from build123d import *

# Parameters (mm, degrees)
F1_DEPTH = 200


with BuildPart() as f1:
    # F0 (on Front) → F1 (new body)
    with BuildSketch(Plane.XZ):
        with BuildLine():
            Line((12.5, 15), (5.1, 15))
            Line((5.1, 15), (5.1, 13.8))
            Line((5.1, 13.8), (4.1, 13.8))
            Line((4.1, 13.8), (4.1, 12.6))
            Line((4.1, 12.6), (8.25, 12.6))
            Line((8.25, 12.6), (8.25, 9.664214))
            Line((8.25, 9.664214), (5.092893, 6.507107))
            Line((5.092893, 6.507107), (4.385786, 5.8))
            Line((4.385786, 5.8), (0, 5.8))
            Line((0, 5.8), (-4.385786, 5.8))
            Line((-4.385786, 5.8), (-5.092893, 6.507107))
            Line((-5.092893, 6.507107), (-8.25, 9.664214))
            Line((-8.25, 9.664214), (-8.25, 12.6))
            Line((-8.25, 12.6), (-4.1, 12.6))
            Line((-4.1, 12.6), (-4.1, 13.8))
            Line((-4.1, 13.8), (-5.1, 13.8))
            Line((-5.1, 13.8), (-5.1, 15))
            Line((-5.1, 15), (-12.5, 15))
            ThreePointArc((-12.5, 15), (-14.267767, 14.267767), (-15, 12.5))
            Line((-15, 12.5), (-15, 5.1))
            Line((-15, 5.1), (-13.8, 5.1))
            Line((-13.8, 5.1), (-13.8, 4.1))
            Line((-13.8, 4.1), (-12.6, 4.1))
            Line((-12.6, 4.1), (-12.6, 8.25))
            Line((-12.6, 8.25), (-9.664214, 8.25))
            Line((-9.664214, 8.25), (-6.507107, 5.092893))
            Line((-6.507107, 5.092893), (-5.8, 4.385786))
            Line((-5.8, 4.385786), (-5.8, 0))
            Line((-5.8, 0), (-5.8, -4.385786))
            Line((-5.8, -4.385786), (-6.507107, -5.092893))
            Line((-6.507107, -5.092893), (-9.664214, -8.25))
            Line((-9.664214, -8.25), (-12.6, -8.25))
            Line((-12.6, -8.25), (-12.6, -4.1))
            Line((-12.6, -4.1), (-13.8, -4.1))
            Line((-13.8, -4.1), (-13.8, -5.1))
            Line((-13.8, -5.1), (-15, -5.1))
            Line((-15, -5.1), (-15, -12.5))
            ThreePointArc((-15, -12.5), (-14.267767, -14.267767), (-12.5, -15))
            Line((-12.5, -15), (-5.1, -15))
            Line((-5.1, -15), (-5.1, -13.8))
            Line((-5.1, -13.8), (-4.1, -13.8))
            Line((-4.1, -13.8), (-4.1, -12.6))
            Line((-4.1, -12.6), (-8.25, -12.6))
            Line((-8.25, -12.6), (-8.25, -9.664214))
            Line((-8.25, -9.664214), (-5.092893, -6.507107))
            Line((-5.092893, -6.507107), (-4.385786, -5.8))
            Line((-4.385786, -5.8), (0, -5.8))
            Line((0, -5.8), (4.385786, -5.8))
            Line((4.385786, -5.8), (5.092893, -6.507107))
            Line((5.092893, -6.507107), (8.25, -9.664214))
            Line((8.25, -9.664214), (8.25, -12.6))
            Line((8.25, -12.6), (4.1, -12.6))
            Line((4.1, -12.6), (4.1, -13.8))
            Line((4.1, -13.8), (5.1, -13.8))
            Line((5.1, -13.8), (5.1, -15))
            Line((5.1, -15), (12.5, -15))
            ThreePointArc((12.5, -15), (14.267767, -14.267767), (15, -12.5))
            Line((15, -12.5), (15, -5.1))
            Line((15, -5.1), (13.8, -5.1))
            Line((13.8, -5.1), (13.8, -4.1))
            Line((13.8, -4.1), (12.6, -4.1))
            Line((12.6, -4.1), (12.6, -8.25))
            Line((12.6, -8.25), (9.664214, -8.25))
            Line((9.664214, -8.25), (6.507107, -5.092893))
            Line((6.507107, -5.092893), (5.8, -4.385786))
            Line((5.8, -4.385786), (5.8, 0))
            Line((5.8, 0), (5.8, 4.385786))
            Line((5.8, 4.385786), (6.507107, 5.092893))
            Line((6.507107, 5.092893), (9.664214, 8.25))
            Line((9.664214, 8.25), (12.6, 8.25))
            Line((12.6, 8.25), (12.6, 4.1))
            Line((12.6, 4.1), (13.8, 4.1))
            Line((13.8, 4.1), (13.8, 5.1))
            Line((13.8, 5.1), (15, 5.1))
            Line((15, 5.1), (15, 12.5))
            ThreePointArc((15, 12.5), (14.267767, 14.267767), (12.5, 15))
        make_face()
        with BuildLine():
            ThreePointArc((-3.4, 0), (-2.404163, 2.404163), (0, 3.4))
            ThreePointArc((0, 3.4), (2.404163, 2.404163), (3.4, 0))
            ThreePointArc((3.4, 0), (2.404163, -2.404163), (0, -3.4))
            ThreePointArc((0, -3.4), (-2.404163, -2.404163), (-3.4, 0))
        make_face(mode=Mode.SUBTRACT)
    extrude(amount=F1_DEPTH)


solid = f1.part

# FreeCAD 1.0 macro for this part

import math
import FreeCAD as App
import Part
import Sketcher
from FreeCAD import Vector
Q = App.Units.Quantity

doc = App.newDocument("Part")
params = doc.addObject("Spreadsheet::Sheet", "Params")
for row, (alias, value) in enumerate([
    ("sketch1_radius", "2.5 mm"),
    ("sketch1_radius2", "3.4 mm"),
    ("sketch1_width", "1 mm"),
    ("sketch1_width2", "7.4 mm"),
    ("sketch1_width3", "1.2 mm"),
    ("pad1_length", "200 mm"),
], start=1):
    params.set(f"A{row}", alias)
    params.set(f"B{row}", "=" + value)
    params.setAlias(f"B{row}", alias)

body = doc.addObject("PartDesign::Body", "Body")

# Sketch on XZ plane
sketch1 = body.newObject("Sketcher::SketchObject", "Sketch")
sketch1.AttachmentSupport = (doc.getObject("XZ_Plane"), [""])
sketch1.MapMode = "FlatFace"
sketch1.addGeometry(Part.LineSegment(Vector(12.5, 15, 0), Vector(5.1, 15, 0)), False)
sketch1.addGeometry(Part.LineSegment(Vector(5.1, 15, 0), Vector(5.1, 13.8, 0)), False)
sketch1.addGeometry(Part.LineSegment(Vector(5.1, 13.8, 0), Vector(4.1, 13.8, 0)), False)
sketch1.addGeometry(Part.LineSegment(Vector(4.1, 13.8, 0), Vector(4.1, 12.6, 0)), False)
sketch1.addGeometry(Part.LineSegment(Vector(4.1, 12.6, 0), Vector(8.25, 12.6, 0)), False)
sketch1.addGeometry(Part.LineSegment(Vector(8.25, 12.6, 0), Vector(8.25, 9.664214, 0)), False)
sketch1.addGeometry(Part.LineSegment(Vector(8.25, 9.664214, 0), Vector(4.385786, 5.8, 0)), False)
sketch1.addGeometry(Part.LineSegment(Vector(4.385786, 5.8, 0), Vector(-4.385786, 5.8, 0)), False)
sketch1.addGeometry(Part.LineSegment(Vector(-4.385786, 5.8, 0), Vector(-8.25, 9.664214, 0)), False)
sketch1.addGeometry(Part.LineSegment(Vector(-8.25, 9.664214, 0), Vector(-8.25, 12.6, 0)), False)
sketch1.addGeometry(Part.LineSegment(Vector(-8.25, 12.6, 0), Vector(-4.1, 12.6, 0)), False)
sketch1.addGeometry(Part.LineSegment(Vector(-4.1, 12.6, 0), Vector(-4.1, 13.8, 0)), False)
sketch1.addGeometry(Part.LineSegment(Vector(-4.1, 13.8, 0), Vector(-5.1, 13.8, 0)), False)
sketch1.addGeometry(Part.LineSegment(Vector(-5.1, 13.8, 0), Vector(-5.1, 15, 0)), False)
sketch1.addGeometry(Part.LineSegment(Vector(-5.1, 15, 0), Vector(-12.5, 15, 0)), False)
sketch1.addGeometry(Part.ArcOfCircle(Part.Circle(Vector(-12.5, 12.5, 0), Vector(0, 0, 1), 2.5), math.radians(89.999996), math.radians(180.000004)), False)
sketch1.addGeometry(Part.LineSegment(Vector(-15, 12.5, 0), Vector(-15, 5.1, 0)), False)
sketch1.addGeometry(Part.LineSegment(Vector(-15, 5.1, 0), Vector(-13.8, 5.1, 0)), False)
sketch1.addGeometry(Part.LineSegment(Vector(-13.8, 5.1, 0), Vector(-13.8, 4.1, 0)), False)
sketch1.addGeometry(Part.LineSegment(Vector(-13.8, 4.1, 0), Vector(-12.6, 4.1, 0)), False)
sketch1.addGeometry(Part.LineSegment(Vector(-12.6, 4.1, 0), Vector(-12.6, 8.25, 0)), False)
sketch1.addGeometry(Part.LineSegment(Vector(-12.6, 8.25, 0), Vector(-9.664214, 8.25, 0)), False)
sketch1.addGeometry(Part.LineSegment(Vector(-9.664214, 8.25, 0), Vector(-5.8, 4.385786, 0)), False)
sketch1.addGeometry(Part.LineSegment(Vector(-5.8, 4.385786, 0), Vector(-5.8, -4.385786, 0)), False)
sketch1.addGeometry(Part.LineSegment(Vector(-5.8, -4.385786, 0), Vector(-9.664214, -8.25, 0)), False)
sketch1.addGeometry(Part.LineSegment(Vector(-9.664214, -8.25, 0), Vector(-12.6, -8.25, 0)), False)
sketch1.addGeometry(Part.LineSegment(Vector(-12.6, -8.25, 0), Vector(-12.6, -4.1, 0)), False)
sketch1.addGeometry(Part.LineSegment(Vector(-12.6, -4.1, 0), Vector(-13.8, -4.1, 0)), False)
sketch1.addGeometry(Part.LineSegment(Vector(-13.8, -4.1, 0), Vector(-13.8, -5.1, 0)), False)
sketch1.addGeometry(Part.LineSegment(Vector(-13.8, -5.1, 0), Vector(-15, -5.1, 0)), False)
sketch1.addGeometry(Part.LineSegment(Vector(-15, -5.1, 0), Vector(-15, -12.5, 0)), False)
sketch1.addGeometry(Part.ArcOfCircle(Part.Circle(Vector(-12.5, -12.5, 0), Vector(0, 0, 1), 2.5), math.radians(179.999996), math.radians(270.000004)), False)
sketch1.addGeometry(Part.LineSegment(Vector(-12.5, -15, 0), Vector(-5.1, -15, 0)), False)
sketch1.addGeometry(Part.LineSegment(Vector(-5.1, -15, 0), Vector(-5.1, -13.8, 0)), False)
sketch1.addGeometry(Part.LineSegment(Vector(-5.1, -13.8, 0), Vector(-4.1, -13.8, 0)), False)
sketch1.addGeometry(Part.LineSegment(Vector(-4.1, -13.8, 0), Vector(-4.1, -12.6, 0)), False)
sketch1.addGeometry(Part.LineSegment(Vector(-4.1, -12.6, 0), Vector(-8.25, -12.6, 0)), False)
sketch1.addGeometry(Part.LineSegment(Vector(-8.25, -12.6, 0), Vector(-8.25, -9.664214, 0)), False)
sketch1.addGeometry(Part.LineSegment(Vector(-8.25, -9.664214, 0), Vector(-4.385786, -5.8, 0)), False)
sketch1.addGeometry(Part.LineSegment(Vector(-4.385786, -5.8, 0), Vector(4.385786, -5.8, 0)), False)
sketch1.addGeometry(Part.LineSegment(Vector(4.385786, -5.8, 0), Vector(8.25, -9.664214, 0)), False)
sketch1.addGeometry(Part.LineSegment(Vector(8.25, -9.664214, 0), Vector(8.25, -12.6, 0)), False)
sketch1.addGeometry(Part.LineSegment(Vector(8.25, -12.6, 0), Vector(4.1, -12.6, 0)), False)
sketch1.addGeometry(Part.LineSegment(Vector(4.1, -12.6, 0), Vector(4.1, -13.8, 0)), False)
sketch1.addGeometry(Part.LineSegment(Vector(4.1, -13.8, 0), Vector(5.1, -13.8, 0)), False)
sketch1.addGeometry(Part.LineSegment(Vector(5.1, -13.8, 0), Vector(5.1, -15, 0)), False)
sketch1.addGeometry(Part.LineSegment(Vector(5.1, -15, 0), Vector(12.5, -15, 0)), False)
sketch1.addGeometry(Part.ArcOfCircle(Part.Circle(Vector(12.5, -12.5, 0), Vector(0, 0, 1), 2.5), math.radians(-90.000004), math.radians(0.000004)), False)
sketch1.addGeometry(Part.LineSegment(Vector(15, -12.5, 0), Vector(15, -5.1, 0)), False)
sketch1.addGeometry(Part.LineSegment(Vector(15, -5.1, 0), Vector(13.8, -5.1, 0)), False)
sketch1.addGeometry(Part.LineSegment(Vector(13.8, -5.1, 0), Vector(13.8, -4.1, 0)), False)
sketch1.addGeometry(Part.LineSegment(Vector(13.8, -4.1, 0), Vector(12.6, -4.1, 0)), False)
sketch1.addGeometry(Part.LineSegment(Vector(12.6, -4.1, 0), Vector(12.6, -8.25, 0)), False)
sketch1.addGeometry(Part.LineSegment(Vector(12.6, -8.25, 0), Vector(9.664214, -8.25, 0)), False)
sketch1.addGeometry(Part.LineSegment(Vector(9.664214, -8.25, 0), Vector(5.8, -4.385786, 0)), False)
sketch1.addGeometry(Part.LineSegment(Vector(5.8, -4.385786, 0), Vector(5.8, 4.385786, 0)), False)
sketch1.addGeometry(Part.LineSegment(Vector(5.8, 4.385786, 0), Vector(9.664214, 8.25, 0)), False)
sketch1.addGeometry(Part.LineSegment(Vector(9.664214, 8.25, 0), Vector(12.6, 8.25, 0)), False)
sketch1.addGeometry(Part.LineSegment(Vector(12.6, 8.25, 0), Vector(12.6, 4.1, 0)), False)
sketch1.addGeometry(Part.LineSegment(Vector(12.6, 4.1, 0), Vector(13.8, 4.1, 0)), False)
sketch1.addGeometry(Part.LineSegment(Vector(13.8, 4.1, 0), Vector(13.8, 5.1, 0)), False)
sketch1.addGeometry(Part.LineSegment(Vector(13.8, 5.1, 0), Vector(15, 5.1, 0)), False)
sketch1.addGeometry(Part.LineSegment(Vector(15, 5.1, 0), Vector(15, 12.5, 0)), False)
sketch1.addGeometry(Part.ArcOfCircle(Part.Circle(Vector(12.5, 12.5, 0), Vector(0, 0, 1), 2.5), math.radians(-0.000004), math.radians(90.000004)), False)
sketch1.addGeometry(Part.ArcOfCircle(Part.Circle(Vector(0, 0, 0), Vector(0, 0, 1), 3.4), math.radians(-179.999997), math.radians(-90.000003)), False)
sketch1.addGeometry(Part.ArcOfCircle(Part.Circle(Vector(0, 0, 0), Vector(0, 0, 1), 3.4), math.radians(90.000003), math.radians(179.999997)), False)
sketch1.addGeometry(Part.ArcOfCircle(Part.Circle(Vector(0, 0, 0), Vector(0, 0, 1), 3.4), math.radians(0.000003), math.radians(89.999997)), False)
sketch1.addGeometry(Part.ArcOfCircle(Part.Circle(Vector(0, 0, 0), Vector(0, 0, 1), 3.4), math.radians(-89.999997), math.radians(-0.000003)), False)
sketch1.addConstraint(Sketcher.Constraint("Coincident", 0, 2, 1, 1))
sketch1.addConstraint(Sketcher.Constraint("Coincident", 1, 2, 2, 1))
sketch1.addConstraint(Sketcher.Constraint("Coincident", 2, 2, 3, 1))
sketch1.addConstraint(Sketcher.Constraint("Coincident", 3, 2, 4, 1))
sketch1.addConstraint(Sketcher.Constraint("Coincident", 4, 2, 5, 1))
sketch1.addConstraint(Sketcher.Constraint("Coincident", 5, 2, 6, 1))
sketch1.addConstraint(Sketcher.Constraint("Coincident", 6, 2, 7, 1))
sketch1.addConstraint(Sketcher.Constraint("Coincident", 7, 2, 8, 1))
sketch1.addConstraint(Sketcher.Constraint("Coincident", 8, 2, 9, 1))
sketch1.addConstraint(Sketcher.Constraint("Coincident", 9, 2, 10, 1))
sketch1.addConstraint(Sketcher.Constraint("Coincident", 10, 2, 11, 1))
sketch1.addConstraint(Sketcher.Constraint("Coincident", 11, 2, 12, 1))
sketch1.addConstraint(Sketcher.Constraint("Coincident", 12, 2, 13, 1))
sketch1.addConstraint(Sketcher.Constraint("Coincident", 13, 2, 14, 1))
sketch1.addConstraint(Sketcher.Constraint("Tangent", 14, 2, 15, 1))
sketch1.addConstraint(Sketcher.Constraint("Tangent", 15, 2, 16, 1))
sketch1.addConstraint(Sketcher.Constraint("Coincident", 16, 2, 17, 1))
sketch1.addConstraint(Sketcher.Constraint("Coincident", 17, 2, 18, 1))
sketch1.addConstraint(Sketcher.Constraint("Coincident", 18, 2, 19, 1))
sketch1.addConstraint(Sketcher.Constraint("Coincident", 19, 2, 20, 1))
sketch1.addConstraint(Sketcher.Constraint("Coincident", 20, 2, 21, 1))
sketch1.addConstraint(Sketcher.Constraint("Coincident", 21, 2, 22, 1))
sketch1.addConstraint(Sketcher.Constraint("Coincident", 22, 2, 23, 1))
sketch1.addConstraint(Sketcher.Constraint("Coincident", 23, 2, 24, 1))
sketch1.addConstraint(Sketcher.Constraint("Coincident", 24, 2, 25, 1))
sketch1.addConstraint(Sketcher.Constraint("Coincident", 25, 2, 26, 1))
sketch1.addConstraint(Sketcher.Constraint("Coincident", 26, 2, 27, 1))
sketch1.addConstraint(Sketcher.Constraint("Coincident", 27, 2, 28, 1))
sketch1.addConstraint(Sketcher.Constraint("Coincident", 28, 2, 29, 1))
sketch1.addConstraint(Sketcher.Constraint("Coincident", 29, 2, 30, 1))
sketch1.addConstraint(Sketcher.Constraint("Tangent", 30, 2, 31, 1))
sketch1.addConstraint(Sketcher.Constraint("Tangent", 31, 2, 32, 1))
sketch1.addConstraint(Sketcher.Constraint("Coincident", 32, 2, 33, 1))
sketch1.addConstraint(Sketcher.Constraint("Coincident", 33, 2, 34, 1))
sketch1.addConstraint(Sketcher.Constraint("Coincident", 34, 2, 35, 1))
sketch1.addConstraint(Sketcher.Constraint("Coincident", 35, 2, 36, 1))
sketch1.addConstraint(Sketcher.Constraint("Coincident", 36, 2, 37, 1))
sketch1.addConstraint(Sketcher.Constraint("Coincident", 37, 2, 38, 1))
sketch1.addConstraint(Sketcher.Constraint("Coincident", 38, 2, 39, 1))
sketch1.addConstraint(Sketcher.Constraint("Coincident", 39, 2, 40, 1))
sketch1.addConstraint(Sketcher.Constraint("Coincident", 40, 2, 41, 1))
sketch1.addConstraint(Sketcher.Constraint("Coincident", 41, 2, 42, 1))
sketch1.addConstraint(Sketcher.Constraint("Coincident", 42, 2, 43, 1))
sketch1.addConstraint(Sketcher.Constraint("Coincident", 43, 2, 44, 1))
sketch1.addConstraint(Sketcher.Constraint("Coincident", 44, 2, 45, 1))
sketch1.addConstraint(Sketcher.Constraint("Coincident", 45, 2, 46, 1))
sketch1.addConstraint(Sketcher.Constraint("Tangent", 46, 2, 47, 1))
sketch1.addConstraint(Sketcher.Constraint("Tangent", 47, 2, 48, 1))
sketch1.addConstraint(Sketcher.Constraint("Coincident", 48, 2, 49, 1))
sketch1.addConstraint(Sketcher.Constraint("Coincident", 49, 2, 50, 1))
sketch1.addConstraint(Sketcher.Constraint("Coincident", 50, 2, 51, 1))
sketch1.addConstraint(Sketcher.Constraint("Coincident", 51, 2, 52, 1))
sketch1.addConstraint(Sketcher.Constraint("Coincident", 52, 2, 53, 1))
sketch1.addConstraint(Sketcher.Constraint("Coincident", 53, 2, 54, 1))
sketch1.addConstraint(Sketcher.Constraint("Coincident", 54, 2, 55, 1))
sketch1.addConstraint(Sketcher.Constraint("Coincident", 55, 2, 56, 1))
sketch1.addConstraint(Sketcher.Constraint("Coincident", 56, 2, 57, 1))
sketch1.addConstraint(Sketcher.Constraint("Coincident", 57, 2, 58, 1))
sketch1.addConstraint(Sketcher.Constraint("Coincident", 58, 2, 59, 1))
sketch1.addConstraint(Sketcher.Constraint("Coincident", 59, 2, 60, 1))
sketch1.addConstraint(Sketcher.Constraint("Coincident", 60, 2, 61, 1))
sketch1.addConstraint(Sketcher.Constraint("Coincident", 61, 2, 62, 1))
sketch1.addConstraint(Sketcher.Constraint("Tangent", 62, 2, 63, 1))
sketch1.addConstraint(Sketcher.Constraint("Tangent", 63, 2, 0, 1))
sketch1.addConstraint(Sketcher.Constraint("Tangent", 64, 1, 65, 2))
sketch1.addConstraint(Sketcher.Constraint("Tangent", 65, 1, 66, 2))
sketch1.addConstraint(Sketcher.Constraint("Tangent", 66, 1, 67, 2))
sketch1.addConstraint(Sketcher.Constraint("Tangent", 67, 1, 64, 2))
sketch1.addConstraint(Sketcher.Constraint("Horizontal", 0))
sketch1.addConstraint(Sketcher.Constraint("Vertical", 1))
sketch1.addConstraint(Sketcher.Constraint("Horizontal", 2))
sketch1.addConstraint(Sketcher.Constraint("Vertical", 3))
sketch1.addConstraint(Sketcher.Constraint("Horizontal", 4))
sketch1.addConstraint(Sketcher.Constraint("Vertical", 5))
sketch1.addConstraint(Sketcher.Constraint("Horizontal", 7))
sketch1.addConstraint(Sketcher.Constraint("Vertical", 9))
sketch1.addConstraint(Sketcher.Constraint("Horizontal", 10))
sketch1.addConstraint(Sketcher.Constraint("Vertical", 11))
sketch1.addConstraint(Sketcher.Constraint("Horizontal", 12))
sketch1.addConstraint(Sketcher.Constraint("Vertical", 13))
sketch1.addConstraint(Sketcher.Constraint("Horizontal", 14))
sketch1.addConstraint(Sketcher.Constraint("Vertical", 16))
sketch1.addConstraint(Sketcher.Constraint("Horizontal", 17))
sketch1.addConstraint(Sketcher.Constraint("Vertical", 18))
sketch1.addConstraint(Sketcher.Constraint("Horizontal", 19))
sketch1.addConstraint(Sketcher.Constraint("Vertical", 20))
sketch1.addConstraint(Sketcher.Constraint("Horizontal", 21))
sketch1.addConstraint(Sketcher.Constraint("Vertical", 23))
sketch1.addConstraint(Sketcher.Constraint("Horizontal", 25))
sketch1.addConstraint(Sketcher.Constraint("Vertical", 26))
sketch1.addConstraint(Sketcher.Constraint("Horizontal", 27))
sketch1.addConstraint(Sketcher.Constraint("Vertical", 28))
sketch1.addConstraint(Sketcher.Constraint("Horizontal", 29))
sketch1.addConstraint(Sketcher.Constraint("Vertical", 30))
sketch1.addConstraint(Sketcher.Constraint("Horizontal", 32))
sketch1.addConstraint(Sketcher.Constraint("Vertical", 33))
sketch1.addConstraint(Sketcher.Constraint("Horizontal", 34))
sketch1.addConstraint(Sketcher.Constraint("Vertical", 35))
sketch1.addConstraint(Sketcher.Constraint("Horizontal", 36))
sketch1.addConstraint(Sketcher.Constraint("Vertical", 37))
sketch1.addConstraint(Sketcher.Constraint("Horizontal", 39))
sketch1.addConstraint(Sketcher.Constraint("Vertical", 41))
sketch1.addConstraint(Sketcher.Constraint("Horizontal", 42))
sketch1.addConstraint(Sketcher.Constraint("Vertical", 43))
sketch1.addConstraint(Sketcher.Constraint("Horizontal", 44))
sketch1.addConstraint(Sketcher.Constraint("Vertical", 45))
sketch1.addConstraint(Sketcher.Constraint("Horizontal", 46))
sketch1.addConstraint(Sketcher.Constraint("Vertical", 48))
sketch1.addConstraint(Sketcher.Constraint("Horizontal", 49))
sketch1.addConstraint(Sketcher.Constraint("Vertical", 50))
sketch1.addConstraint(Sketcher.Constraint("Horizontal", 51))
sketch1.addConstraint(Sketcher.Constraint("Vertical", 52))
sketch1.addConstraint(Sketcher.Constraint("Horizontal", 53))
sketch1.addConstraint(Sketcher.Constraint("Vertical", 55))
sketch1.addConstraint(Sketcher.Constraint("Horizontal", 57))
sketch1.addConstraint(Sketcher.Constraint("Vertical", 58))
sketch1.addConstraint(Sketcher.Constraint("Horizontal", 59))
sketch1.addConstraint(Sketcher.Constraint("Vertical", 60))
sketch1.addConstraint(Sketcher.Constraint("Horizontal", 61))
sketch1.addConstraint(Sketcher.Constraint("Vertical", 62))
sketch1.addConstraint(Sketcher.Constraint("Coincident", 64, 3, -1, 1))
sketch1.addConstraint(Sketcher.Constraint("Equal", 15, 31))
sketch1.addConstraint(Sketcher.Constraint("Equal", 31, 47))
sketch1.addConstraint(Sketcher.Constraint("Equal", 47, 63))
sketch1.addConstraint(Sketcher.Constraint("Equal", 64, 65))
sketch1.addConstraint(Sketcher.Constraint("Symmetric", 15, 3, 47, 3, -1, 1))
sketch1.addConstraint(Sketcher.Constraint("Symmetric", 31, 3, 63, 3, -1, 1))
sketch1.addConstraint(Sketcher.Constraint("Symmetric", 1, 2, 33, 2, -1, 1))
sketch1.addConstraint(Sketcher.Constraint("Symmetric", 3, 2, 35, 2, -1, 1))
sketch1.addConstraint(Sketcher.Constraint("Symmetric", 5, 2, 37, 2, -1, 1))
sketch1.addConstraint(Sketcher.Constraint("Symmetric", 6, 2, 38, 2, -1, 1))
sketch1.addConstraint(Sketcher.Constraint("Symmetric", 8, 2, 40, 2, -1, 1))
sketch1.addConstraint(Sketcher.Constraint("Symmetric", 10, 2, 42, 2, -1, 1))
sketch1.addConstraint(Sketcher.Constraint("Symmetric", 12, 2, 44, 2, -1, 1))
sketch1.addConstraint(Sketcher.Constraint("Symmetric", 17, 2, 49, 2, -1, 1))
sketch1.addConstraint(Sketcher.Constraint("Symmetric", 19, 2, 51, 2, -1, 1))
sketch1.addConstraint(Sketcher.Constraint("Symmetric", 21, 2, 53, 2, -1, 1))
sketch1.addConstraint(Sketcher.Constraint("Symmetric", 22, 2, 54, 2, -1, 1))
sketch1.addConstraint(Sketcher.Constraint("Symmetric", 24, 2, 56, 2, -1, 1))
sketch1.addConstraint(Sketcher.Constraint("Symmetric", 26, 2, 58, 2, -1, 1))
sketch1.addConstraint(Sketcher.Constraint("Symmetric", 28, 2, 60, 2, -1, 1))
sketch1.addConstraint(Sketcher.Constraint("Symmetric", 31, 3, 47, 3, -2))
sketch1.addConstraint(Sketcher.Constraint("Symmetric", 5, 2, 8, 2, -2))
sketch1.addConstraint(Sketcher.Constraint("Symmetric", 3, 2, 10, 2, -2))
sketch1.addConstraint(Sketcher.Constraint("Symmetric", 1, 2, 12, 2, -2))
sketch1.addConstraint(Sketcher.Constraint("Symmetric", 28, 2, 49, 2, -2))
sketch1.addConstraint(Sketcher.Constraint("Symmetric", 26, 2, 51, 2, -2))
sketch1.addConstraint(Sketcher.Constraint("Symmetric", 24, 2, 53, 2, -2))
sketch1.addConstraint(Sketcher.Constraint("PointOnObject", 64, 1, -1))
sketch1.addConstraint(Sketcher.Constraint("PointOnObject", 65, 1, -2))
sketch1.addConstraint(Sketcher.Constraint("PointOnObject", 66, 1, -1))
sketch1.addConstraint(Sketcher.Constraint("PointOnObject", 67, 1, -2))
sketch1.addConstraint(Sketcher.Constraint("Perpendicular", 6, 8))
sketch1.addConstraint(Sketcher.Constraint("Parallel", 8, 22))
sketch1.addConstraint(Sketcher.Constraint("Perpendicular", 22, 24))
sketch1.addConstraint(Sketcher.Constraint("Perpendicular", 38, 40))
sketch1.addConstraint(Sketcher.Constraint("Perpendicular", 54, 56))
sketch1.addConstraint(Sketcher.Constraint("Horizontal", 23, 2, 54, 2))
sketch1.addConstraint(Sketcher.Constraint("Equal", 17, 19))
sketch1.addConstraint(Sketcher.Constraint("Equal", 61, 1))
sketch1.addConstraint(Sketcher.Constraint("Equal", 1, 3))
sketch1.addConstraint(Sketcher.Constraint("Equal", 57, 5))
sketch1.addConstraint(Sketcher.Constraint("Equal", 46, 16))
sketch1.addConstraint(Sketcher.Constraint("Equal", 44, 18))
sketch1.addConstraint(Sketcher.Constraint("Equal", 42, 20))
sketch1.addConstraint(Sketcher.Constraint("Equal", 39, 23))
sketch1.addConstraint(Sketcher.Constraint("Equal", 8, 22))
sketch1.addConstraint(Sketcher.Constraint("Radius", 15, Q("2.5 mm")))
sketch1.addConstraint(Sketcher.Constraint("Radius", 64, Q("3.4 mm")))
sketch1.addConstraint(Sketcher.Constraint("DistanceX", 2, 2, 2, 1, Q("1 mm")))
sketch1.addConstraint(Sketcher.Constraint("DistanceX", 0, 2, 0, 1, Q("7.4 mm")))
sketch1.addConstraint(Sketcher.Constraint("DistanceX", 17, 1, 17, 2, Q("1.2 mm")))
sketch1.addConstraint(Sketcher.Constraint("DistanceY", -1, 1, 0, 2, Q("15 mm")))
sketch1.addConstraint(Sketcher.Constraint("DistanceX", 4, 1, 4, 2, Q("4.15 mm")))
sketch1.addConstraint(Sketcher.Constraint("DistanceY", -1, 1, 6, 2, Q("5.8 mm")))
sketch1.addConstraint(Sketcher.Constraint("DistanceX", 7, 2, 7, 1, Q("8.771572 mm")))
sketch1.setExpression("Constraints[167]", "Params.sketch1_radius")
sketch1.setExpression("Constraints[168]", "Params.sketch1_radius2")
sketch1.setExpression("Constraints[169]", "Params.sketch1_width")
sketch1.setExpression("Constraints[170]", "Params.sketch1_width2")
sketch1.setExpression("Constraints[171]", "Params.sketch1_width3")
pad1 = body.newObject("PartDesign::Pad", "Pad")
pad1.Profile = sketch1
pad1.setExpression("Length", "Params.pad1_length")

doc.recompute()
